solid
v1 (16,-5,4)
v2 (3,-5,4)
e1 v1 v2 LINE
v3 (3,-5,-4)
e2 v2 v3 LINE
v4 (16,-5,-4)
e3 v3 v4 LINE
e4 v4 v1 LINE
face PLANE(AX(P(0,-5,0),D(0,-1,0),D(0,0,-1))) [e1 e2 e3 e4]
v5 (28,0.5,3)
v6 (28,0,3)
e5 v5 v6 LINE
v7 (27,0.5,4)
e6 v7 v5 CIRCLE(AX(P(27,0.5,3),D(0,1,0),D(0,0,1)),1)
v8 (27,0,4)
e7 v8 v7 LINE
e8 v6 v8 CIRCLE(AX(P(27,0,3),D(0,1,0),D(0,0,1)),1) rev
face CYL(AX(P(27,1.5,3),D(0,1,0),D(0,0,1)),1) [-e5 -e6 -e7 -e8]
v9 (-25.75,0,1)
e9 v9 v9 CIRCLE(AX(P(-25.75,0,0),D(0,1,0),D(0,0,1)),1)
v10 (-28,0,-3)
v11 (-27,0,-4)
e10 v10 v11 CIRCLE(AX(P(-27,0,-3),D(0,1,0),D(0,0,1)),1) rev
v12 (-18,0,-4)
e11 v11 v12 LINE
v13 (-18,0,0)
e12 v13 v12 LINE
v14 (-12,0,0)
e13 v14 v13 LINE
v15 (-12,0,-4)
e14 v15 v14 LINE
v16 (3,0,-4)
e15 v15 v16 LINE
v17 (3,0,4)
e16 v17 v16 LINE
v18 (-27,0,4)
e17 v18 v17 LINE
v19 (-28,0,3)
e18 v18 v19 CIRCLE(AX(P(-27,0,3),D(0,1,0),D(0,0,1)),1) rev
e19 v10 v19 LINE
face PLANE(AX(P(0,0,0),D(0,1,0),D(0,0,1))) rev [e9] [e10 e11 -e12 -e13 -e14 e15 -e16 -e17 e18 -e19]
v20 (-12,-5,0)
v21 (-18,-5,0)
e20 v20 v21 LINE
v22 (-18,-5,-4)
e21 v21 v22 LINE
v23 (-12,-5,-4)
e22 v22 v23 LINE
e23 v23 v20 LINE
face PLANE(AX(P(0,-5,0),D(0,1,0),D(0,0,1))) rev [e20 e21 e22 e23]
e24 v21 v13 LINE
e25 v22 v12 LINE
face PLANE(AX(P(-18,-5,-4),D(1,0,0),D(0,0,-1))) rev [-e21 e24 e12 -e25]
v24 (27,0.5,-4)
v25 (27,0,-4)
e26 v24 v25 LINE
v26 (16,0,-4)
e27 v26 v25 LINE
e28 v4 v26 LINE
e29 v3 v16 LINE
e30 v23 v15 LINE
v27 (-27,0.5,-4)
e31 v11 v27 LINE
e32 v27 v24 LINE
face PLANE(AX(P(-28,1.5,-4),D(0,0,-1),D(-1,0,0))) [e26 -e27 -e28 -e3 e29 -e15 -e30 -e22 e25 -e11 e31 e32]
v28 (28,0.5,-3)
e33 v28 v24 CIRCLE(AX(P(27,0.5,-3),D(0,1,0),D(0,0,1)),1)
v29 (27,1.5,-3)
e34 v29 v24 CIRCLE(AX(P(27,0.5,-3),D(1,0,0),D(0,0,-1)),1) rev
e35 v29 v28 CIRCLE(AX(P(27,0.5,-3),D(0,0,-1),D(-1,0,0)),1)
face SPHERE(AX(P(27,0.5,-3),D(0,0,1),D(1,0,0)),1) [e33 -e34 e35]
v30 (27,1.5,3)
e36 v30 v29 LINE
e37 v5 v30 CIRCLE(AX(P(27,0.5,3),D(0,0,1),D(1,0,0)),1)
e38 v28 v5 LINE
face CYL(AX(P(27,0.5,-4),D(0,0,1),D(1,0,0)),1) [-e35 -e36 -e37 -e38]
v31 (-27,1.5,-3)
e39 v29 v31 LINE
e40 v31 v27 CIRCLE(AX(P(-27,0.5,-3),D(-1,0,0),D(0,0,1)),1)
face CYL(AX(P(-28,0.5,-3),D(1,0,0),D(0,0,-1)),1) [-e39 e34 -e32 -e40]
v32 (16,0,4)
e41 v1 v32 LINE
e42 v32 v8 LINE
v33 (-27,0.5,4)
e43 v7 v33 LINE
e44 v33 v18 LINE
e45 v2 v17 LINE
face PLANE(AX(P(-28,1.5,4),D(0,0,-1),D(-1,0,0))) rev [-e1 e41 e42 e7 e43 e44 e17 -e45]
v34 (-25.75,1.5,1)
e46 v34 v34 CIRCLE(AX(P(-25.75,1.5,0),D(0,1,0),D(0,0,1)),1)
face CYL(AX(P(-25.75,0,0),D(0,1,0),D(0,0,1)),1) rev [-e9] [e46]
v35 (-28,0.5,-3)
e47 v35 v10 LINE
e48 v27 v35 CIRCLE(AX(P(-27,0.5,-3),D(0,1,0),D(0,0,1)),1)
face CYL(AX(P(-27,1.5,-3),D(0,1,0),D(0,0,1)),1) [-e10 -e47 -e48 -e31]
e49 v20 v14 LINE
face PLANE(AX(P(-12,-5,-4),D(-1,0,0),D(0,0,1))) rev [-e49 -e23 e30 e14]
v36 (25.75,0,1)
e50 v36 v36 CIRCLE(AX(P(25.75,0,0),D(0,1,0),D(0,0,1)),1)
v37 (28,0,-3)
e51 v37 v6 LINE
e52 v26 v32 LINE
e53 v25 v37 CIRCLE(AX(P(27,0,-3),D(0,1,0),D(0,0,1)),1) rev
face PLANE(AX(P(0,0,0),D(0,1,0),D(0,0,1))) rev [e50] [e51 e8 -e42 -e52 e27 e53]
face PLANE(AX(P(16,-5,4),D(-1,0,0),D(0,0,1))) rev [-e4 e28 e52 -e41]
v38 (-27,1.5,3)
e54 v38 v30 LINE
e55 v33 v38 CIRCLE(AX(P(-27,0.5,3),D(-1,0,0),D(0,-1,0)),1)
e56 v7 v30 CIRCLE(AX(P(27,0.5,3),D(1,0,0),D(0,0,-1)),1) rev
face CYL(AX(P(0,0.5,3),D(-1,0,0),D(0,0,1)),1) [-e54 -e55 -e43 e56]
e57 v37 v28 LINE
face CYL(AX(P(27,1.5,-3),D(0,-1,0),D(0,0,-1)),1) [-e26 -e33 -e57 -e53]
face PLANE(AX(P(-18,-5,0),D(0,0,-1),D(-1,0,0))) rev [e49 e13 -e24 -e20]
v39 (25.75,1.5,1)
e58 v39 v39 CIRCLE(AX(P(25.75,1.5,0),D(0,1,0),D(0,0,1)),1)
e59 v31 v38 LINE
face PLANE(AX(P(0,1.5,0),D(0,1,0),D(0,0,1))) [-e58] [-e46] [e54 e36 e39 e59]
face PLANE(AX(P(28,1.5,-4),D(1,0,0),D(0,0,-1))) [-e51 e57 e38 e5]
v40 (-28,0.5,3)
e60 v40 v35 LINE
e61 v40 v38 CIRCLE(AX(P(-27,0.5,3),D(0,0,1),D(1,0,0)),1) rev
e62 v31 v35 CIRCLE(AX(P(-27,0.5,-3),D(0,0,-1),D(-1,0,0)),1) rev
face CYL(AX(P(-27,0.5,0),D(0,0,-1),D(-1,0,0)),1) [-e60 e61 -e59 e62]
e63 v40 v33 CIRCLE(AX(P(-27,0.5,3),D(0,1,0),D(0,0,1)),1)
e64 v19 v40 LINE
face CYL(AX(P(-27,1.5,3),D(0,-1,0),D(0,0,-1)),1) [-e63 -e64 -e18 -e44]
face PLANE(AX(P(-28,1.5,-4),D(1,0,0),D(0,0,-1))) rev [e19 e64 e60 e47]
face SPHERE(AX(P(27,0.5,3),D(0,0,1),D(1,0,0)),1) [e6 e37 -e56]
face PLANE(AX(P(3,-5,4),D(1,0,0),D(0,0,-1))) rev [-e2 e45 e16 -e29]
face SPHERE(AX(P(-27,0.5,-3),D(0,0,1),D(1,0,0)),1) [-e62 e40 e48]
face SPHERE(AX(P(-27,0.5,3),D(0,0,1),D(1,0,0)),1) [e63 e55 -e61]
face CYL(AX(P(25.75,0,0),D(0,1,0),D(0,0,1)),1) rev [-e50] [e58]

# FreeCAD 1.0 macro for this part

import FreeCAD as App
import Part
import Sketcher
from FreeCAD import Vector
Q = App.Units.Quantity


def edges_at(feature, points):
    """Names of the edges that pass closest to the given points."""
    edges = feature.Shape.Edges
    near = lambda p: min(range(len(edges)), key=lambda i: edges[i].distToShape(Part.Vertex(*p))[0])
    return sorted({f"Edge{near(p) + 1}" for p in points})

doc = App.newDocument("Part")
body = doc.addObject("PartDesign::Body", "Body")

sketch1 = doc.addObject("Sketcher::SketchObject", "Sketch")
body.addObject(sketch1)
sketch1.AttachmentSupport = (doc.XZ_Plane, [""])
sketch1.MapMode = "FlatFace"
sketch1.addGeometry(Part.LineSegment(Vector(-28, -4, 0), Vector(-28, 4, 0)), False)
sketch1.addGeometry(Part.LineSegment(Vector(-28, 4, 0), Vector(28, 4, 0)), False)
sketch1.addGeometry(Part.LineSegment(Vector(28, 4, 0), Vector(28, -4, 0)), False)
sketch1.addGeometry(Part.LineSegment(Vector(28, -4, 0), Vector(-28, -4, 0)), False)
sketch1.addConstraint(Sketcher.Constraint("Coincident", 0, 2, 1, 1))
sketch1.addConstraint(Sketcher.Constraint("Coincident", 1, 2, 2, 1))
sketch1.addConstraint(Sketcher.Constraint("Coincident", 2, 2, 3, 1))
sketch1.addConstraint(Sketcher.Constraint("Coincident", 3, 2, 0, 1))
sketch1.addConstraint(Sketcher.Constraint("Vertical", 0))
sketch1.addConstraint(Sketcher.Constraint("Horizontal", 1))
sketch1.addConstraint(Sketcher.Constraint("Vertical", 2))
sketch1.addConstraint(Sketcher.Constraint("Horizontal", 3))
sketch1.addConstraint(Sketcher.Constraint("Symmetric", 0, 2, 2, 2, -1, 1))
sketch1.addConstraint(Sketcher.Constraint("DistanceX", 1, 1, 1, 2, Q("56 mm")))
sketch1.addConstraint(Sketcher.Constraint("DistanceY", 0, 1, 0, 2, Q("8 mm")))
pad1 = doc.addObject("PartDesign::Pad", "Pad")
body.addObject(pad1)
pad1.Profile = sketch1
pad1.Length = 1.5
pad1.Reversed = True

sketch2 = doc.addObject("Sketcher::SketchObject", "Sketch001")
body.addObject(sketch2)
sketch2.AttachmentSupport = (doc.XZ_Plane, [""])
sketch2.MapMode = "FlatFace"
sketch2.AttachmentOffset = App.Placement(Vector(0, 0, -1.5), App.Rotation())
sketch2.addGeometry(Part.Circle(Vector(-25.8, 0, 0), Vector(0, 0, 1), 1), False)
sketch2.addGeometry(Part.Circle(Vector(25.8, 0, 0), Vector(0, 0, 1), 1), False)
sketch2.addConstraint(Sketcher.Constraint("Equal", 0, 1))
sketch2.addConstraint(Sketcher.Constraint("Symmetric", 0, 3, 1, 3, -1, 1))
sketch2.addConstraint(Sketcher.Constraint("PointOnObject", 0, 3, -1))
sketch2.addConstraint(Sketcher.Constraint("Diameter", 0, Q("2 mm")))
sketch2.addConstraint(Sketcher.Constraint("DistanceX", 0, 3, 1, 3, Q("51.5 mm")))
pocket1 = doc.addObject("PartDesign::Pocket", "Pocket")
body.addObject(pocket1)
pocket1.Profile = sketch2
pocket1.Type = "ThroughAll"
pocket1.Midplane = True
doc.recompute()

fillet = doc.addObject("PartDesign::Fillet", "Fillet")
body.addObject(fillet)
fillet.Base = (pocket1, edges_at(pocket1, [
    (28, 1.5, 0),
    (0, 1.5, -4),
    (-28, 1.5, 0),
    (-28, 0.75, -4),
    (28, 0.75, -4),
    (28, 0.75, 4),
    (-28, 0.75, 4),
    (0, 1.5, 4),
]))
fillet.Radius = 1

sketch3 = doc.addObject("Sketcher::SketchObject", "Sketch002")
body.addObject(sketch3)
sketch3.AttachmentSupport = (doc.XZ_Plane, [""])
sketch3.MapMode = "FlatFace"
sketch3.addGeometry(Part.LineSegment(Vector(3, 4, 0), Vector(3, -4, 0)), False)
sketch3.addGeometry(Part.LineSegment(Vector(3, -4, 0), Vector(16, -4, 0)), False)
sketch3.addGeometry(Part.LineSegment(Vector(16, -4, 0), Vector(16, 4, 0)), False)
sketch3.addGeometry(Part.LineSegment(Vector(16, 4, 0), Vector(3, 4, 0)), False)
sketch3.addGeometry(Part.LineSegment(Vector(-18, 0, 0), Vector(-18, -4, 0)), False)
sketch3.addGeometry(Part.LineSegment(Vector(-18, -4, 0), Vector(-12, -4, 0)), False)
sketch3.addGeometry(Part.LineSegment(Vector(-12, -4, 0), Vector(-12, 0, 0)), False)
sketch3.addGeometry(Part.LineSegment(Vector(-12, 0, 0), Vector(-18, 0, 0)), False)
sketch3.addConstraint(Sketcher.Constraint("Coincident", 0, 2, 1, 1))
sketch3.addConstraint(Sketcher.Constraint("Coincident", 1, 2, 2, 1))
sketch3.addConstraint(Sketcher.Constraint("Coincident", 2, 2, 3, 1))
sketch3.addConstraint(Sketcher.Constraint("Coincident", 3, 2, 0, 1))
sketch3.addConstraint(Sketcher.Constraint("Coincident", 4, 2, 5, 1))
sketch3.addConstraint(Sketcher.Constraint("Coincident", 5, 2, 6, 1))
sketch3.addConstraint(Sketcher.Constraint("Coincident", 6, 2, 7, 1))
sketch3.addConstraint(Sketcher.Constraint("Coincident", 7, 2, 4, 1))
sketch3.addConstraint(Sketcher.Constraint("Vertical", 0))
sketch3.addConstraint(Sketcher.Constraint("Horizontal", 1))
sketch3.addConstraint(Sketcher.Constraint("Vertical", 2))
sketch3.addConstraint(Sketcher.Constraint("Horizontal", 3))
sketch3.addConstraint(Sketcher.Constraint("Vertical", 4))
sketch3.addConstraint(Sketcher.Constraint("Horizontal", 5))
sketch3.addConstraint(Sketcher.Constraint("Vertical", 6))
sketch3.addConstraint(Sketcher.Constraint("Horizontal", 7))
sketch3.addConstraint(Sketcher.Constraint("PointOnObject", 6, 2, -1))
sketch3.addConstraint(Sketcher.Constraint("Horizontal", 1, 2, 4, 2))
sketch3.addConstraint(Sketcher.Constraint("DistanceX", 1, 1, 1, 2, Q("13 mm")))
sketch3.addConstraint(Sketcher.Constraint("DistanceX", 5, 1, 5, 2, Q("6 mm")))
sketch3.addConstraint(Sketcher.Constraint("DistanceY", 0, 2, 0, 1, Q("8 mm")))
sketch3.addConstraint(Sketcher.Constraint("DistanceY", 4, 2, 4, 1, Q("4 mm")))
sketch3.addConstraint(Sketcher.Constraint("DistanceX", -1, 1, 0, 2, Q("3 mm")))
sketch3.addConstraint(Sketcher.Constraint("DistanceX", 4, 2, -1, 1, Q("18 mm")))
pad2 = doc.addObject("PartDesign::Pad", "Pad001")
body.addObject(pad2)
pad2.Profile = sketch3
pad2.Length = 5

doc.recompute()
